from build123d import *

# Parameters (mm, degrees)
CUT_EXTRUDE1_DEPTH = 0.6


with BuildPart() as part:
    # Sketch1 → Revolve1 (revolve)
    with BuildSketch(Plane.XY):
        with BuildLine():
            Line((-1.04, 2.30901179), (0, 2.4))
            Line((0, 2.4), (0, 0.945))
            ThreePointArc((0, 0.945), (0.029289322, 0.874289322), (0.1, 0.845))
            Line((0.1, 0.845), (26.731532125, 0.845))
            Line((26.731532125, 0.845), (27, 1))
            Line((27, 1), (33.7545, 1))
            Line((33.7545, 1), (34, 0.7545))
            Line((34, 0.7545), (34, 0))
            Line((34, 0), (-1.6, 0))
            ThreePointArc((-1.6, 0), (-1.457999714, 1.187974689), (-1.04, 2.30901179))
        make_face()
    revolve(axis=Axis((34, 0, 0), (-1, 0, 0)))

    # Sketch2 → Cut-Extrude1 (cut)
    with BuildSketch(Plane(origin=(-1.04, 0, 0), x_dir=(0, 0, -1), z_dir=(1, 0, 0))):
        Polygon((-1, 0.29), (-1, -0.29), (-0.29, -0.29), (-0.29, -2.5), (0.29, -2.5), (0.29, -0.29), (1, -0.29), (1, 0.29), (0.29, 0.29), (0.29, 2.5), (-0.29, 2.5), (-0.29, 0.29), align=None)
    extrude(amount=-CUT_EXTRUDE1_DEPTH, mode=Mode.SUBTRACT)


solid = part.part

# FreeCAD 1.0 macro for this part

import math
import FreeCAD as App
import Part
import Sketcher
from FreeCAD import Vector
Q = App.Units.Quantity


def add_polygon(sketch, points):
    """Adds a closed chain of lines whose ends are joined by coincident constraints."""
    first, n = sketch.GeometryCount, len(points)
    for a, b in zip(points, points[1:] + points[:1]):
        sketch.addGeometry(Part.LineSegment(App.Vector(*a, 0), App.Vector(*b, 0)), False)
    for i in range(n):
        sketch.addConstraint(Sketcher.Constraint("Coincident", first + i, 2, first + (i + 1) % n, 1))

doc = App.newDocument("Part")
body = doc.addObject("PartDesign::Body", "Body")

# Sketch on XY plane
sketch1 = doc.addObject("Sketcher::SketchObject", "Sketch")
body.addObject(sketch1)
sketch1.AttachmentSupport = (doc.XY_Plane, [""])
sketch1.MapMode = "FlatFace"
sketch1.addGeometry([
    Part.LineSegment(Vector(0, 2.4, 0), Vector(-1.04, 2.309012, 0)),  # 0
    Part.ArcOfCircle(Part.Circle(Vector(3.4403, 0, 0), Vector(0, 0, 1), 5.0403), math.radians(152.734781), math.radians(180)),  # 1
    Part.LineSegment(Vector(-1.6, 0, 0), Vector(34, 0, 0)),  # 2
    Part.LineSegment(Vector(34, 0, 0), Vector(34, 0.7545, 0)),  # 3
    Part.LineSegment(Vector(34, 0.7545, 0), Vector(33.7545, 1, 0)),  # 4
    Part.LineSegment(Vector(33.7545, 1, 0), Vector(27, 1, 0)),  # 5
    Part.LineSegment(Vector(27, 1, 0), Vector(26.731532, 0.845, 0)),  # 6
    Part.LineSegment(Vector(26.731532, 0.845, 0), Vector(0.1, 0.845, 0)),  # 7
    Part.ArcOfCircle(Part.Circle(Vector(0.1, 0.945, 0), Vector(0, 0, 1), 0.1), math.radians(180), math.radians(270)),  # 8
    Part.LineSegment(Vector(0, 0.945, 0), Vector(0, 2.4, 0)),  # 9
], False)
sketch1.addConstraint([
    Sketcher.Constraint("Coincident", 0, 2, 1, 1),
    Sketcher.Constraint("Coincident", 1, 2, 2, 1),
    Sketcher.Constraint("Coincident", 2, 2, 3, 1),
    Sketcher.Constraint("Coincident", 3, 2, 4, 1),
    Sketcher.Constraint("Coincident", 4, 2, 5, 1),
    Sketcher.Constraint("Coincident", 5, 2, 6, 1),
    Sketcher.Constraint("Coincident", 6, 2, 7, 1),
    Sketcher.Constraint("Tangent", 7, 2, 8, 2),
    Sketcher.Constraint("Tangent", 8, 1, 9, 1),
    Sketcher.Constraint("Coincident", 9, 2, 0, 1),
    Sketcher.Constraint("Horizontal", 2),
    Sketcher.Constraint("Vertical", 3),
    Sketcher.Constraint("Horizontal", 5),
    Sketcher.Constraint("Horizontal", 7),
    Sketcher.Constraint("Vertical", 9),
    Sketcher.Constraint("PointOnObject", 1, 3, -1),
    Sketcher.Constraint("PointOnObject", 1, 2, -1),
    Sketcher.Constraint("PointOnObject", 8, 1, -2),
    Sketcher.Constraint("Radius", 8, 0.1),
    Sketcher.Constraint("Angle", 0, Q("-175 deg")),
    Sketcher.Constraint("Angle", 4, Q("135 deg")),
    Sketcher.Constraint("Angle", 6, Q("-150 deg")),
    Sketcher.Constraint("DistanceX", 2, 1, 2, 2, 35.6),
    Sketcher.Constraint("DistanceX", -1, 1, 2, 2, 34.0),
    Sketcher.Constraint("DistanceY", -1, 1, 4, 2, 1.0),
    Sketcher.Constraint("DistanceX", -1, 1, 5, 2, 27.0),
    Sketcher.Constraint("DistanceY", -1, 1, 9, 2, 2.4),
    Sketcher.Constraint("Radius", 1, 5.0403),
    Sketcher.Constraint("Distance", 6, 0.31),
    Sketcher.Constraint("DistanceX", 5, 2, 5, 1, 6.7545),
])
revolution = doc.addObject("PartDesign::Revolution", "Revolution")
body.addObject(revolution)
revolution.Profile = sketch1
revolution.ReferenceAxis = (sketch1, ["H_Axis"])
revolution.Angle = 360

# Sketch on YZ plane
sketch2 = doc.addObject("Sketcher::SketchObject", "Sketch001")
body.addObject(sketch2)
sketch2.AttachmentSupport = (doc.YZ_Plane, [""])
sketch2.MapMode = "FlatFace"
sketch2.AttachmentOffset = App.Placement(Vector(0, 0, -1.04), App.Rotation())
add_polygon(sketch2, [(0.29, 1), (-0.29, 1), (-0.29, 0.29), (-2.5, 0.29), (-2.5, -0.29), (-0.29, -0.29), (-0.29, -1), (0.29, -1), (0.29, -0.29), (2.5, -0.29), (2.5, 0.29), (0.29, 0.29)])  # lines 0-11
sketch2.addConstraint([
    Sketcher.Constraint("Horizontal", 0),
    Sketcher.Constraint("Vertical", 1),
    Sketcher.Constraint("Horizontal", 2),
    Sketcher.Constraint("Vertical", 3),
    Sketcher.Constraint("Horizontal", 4),
    Sketcher.Constraint("Vertical", 5),
    Sketcher.Constraint("Horizontal", 6),
    Sketcher.Constraint("Vertical", 7),
    Sketcher.Constraint("Horizontal", 8),
    Sketcher.Constraint("Vertical", 9),
    Sketcher.Constraint("Horizontal", 10),
    Sketcher.Constraint("Vertical", 11),
    Sketcher.Constraint("Symmetric", 0, 2, 6, 2, -1, 1),
    Sketcher.Constraint("Symmetric", 2, 2, 8, 2, -1, 1),
    Sketcher.Constraint("Symmetric", 4, 2, 10, 2, -1, 1),
    Sketcher.Constraint("Symmetric", 4, 2, 7, 2, -2),
    Sketcher.Constraint("Equal", 6, 3),
    Sketcher.Constraint("DistanceY", -1, 1, 0, 2, 1.0),
    Sketcher.Constraint("DistanceX", 0, 2, 0, 1, 0.58),
    Sketcher.Constraint("DistanceX", 2, 2, 2, 1, 2.21),
])
pocket1 = doc.addObject("PartDesign::Pocket", "Pocket")
body.addObject(pocket1)
pocket1.Profile = sketch2
pocket1.Length = 0.6

doc.recompute()
